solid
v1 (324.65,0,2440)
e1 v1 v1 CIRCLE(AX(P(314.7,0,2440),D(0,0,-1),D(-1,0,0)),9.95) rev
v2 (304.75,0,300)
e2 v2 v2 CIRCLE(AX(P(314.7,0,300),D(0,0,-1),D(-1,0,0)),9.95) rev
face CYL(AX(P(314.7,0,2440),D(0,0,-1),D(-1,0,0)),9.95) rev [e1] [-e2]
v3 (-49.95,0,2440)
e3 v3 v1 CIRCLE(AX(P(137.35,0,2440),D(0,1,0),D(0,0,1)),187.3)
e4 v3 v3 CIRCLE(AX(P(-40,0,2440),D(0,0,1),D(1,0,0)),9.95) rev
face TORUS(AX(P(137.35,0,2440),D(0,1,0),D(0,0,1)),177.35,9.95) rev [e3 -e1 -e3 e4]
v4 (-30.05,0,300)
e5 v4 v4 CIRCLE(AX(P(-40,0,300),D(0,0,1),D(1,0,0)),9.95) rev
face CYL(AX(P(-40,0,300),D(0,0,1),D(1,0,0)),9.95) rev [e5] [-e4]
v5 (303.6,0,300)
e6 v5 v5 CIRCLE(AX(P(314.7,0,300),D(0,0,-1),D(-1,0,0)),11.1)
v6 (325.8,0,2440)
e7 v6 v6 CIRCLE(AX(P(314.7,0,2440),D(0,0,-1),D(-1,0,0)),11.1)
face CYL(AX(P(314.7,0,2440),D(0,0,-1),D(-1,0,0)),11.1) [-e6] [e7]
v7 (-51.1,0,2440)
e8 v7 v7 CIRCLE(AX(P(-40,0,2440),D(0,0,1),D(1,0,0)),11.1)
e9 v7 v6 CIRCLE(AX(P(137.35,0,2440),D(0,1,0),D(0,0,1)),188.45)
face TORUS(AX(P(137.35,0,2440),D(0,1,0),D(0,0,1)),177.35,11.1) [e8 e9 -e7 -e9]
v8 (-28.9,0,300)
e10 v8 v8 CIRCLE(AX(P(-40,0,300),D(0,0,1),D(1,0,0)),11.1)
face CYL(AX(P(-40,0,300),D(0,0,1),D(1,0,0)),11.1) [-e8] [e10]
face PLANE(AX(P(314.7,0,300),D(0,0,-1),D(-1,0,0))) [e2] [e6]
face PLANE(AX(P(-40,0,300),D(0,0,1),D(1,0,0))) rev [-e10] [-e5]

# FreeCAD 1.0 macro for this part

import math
import FreeCAD as App
import Part
import Sketcher
Q = App.Units.Quantity

doc = App.newDocument("Part")
params = doc.addObject("Spreadsheet::Sheet", "Params")
for row, (alias, value) in enumerate([
    ("sketch1_diameter", "22.2 mm"),
    ("sketch1_diameter2", "19.9 mm"),
    ("sketch2_height", "2140 mm"),
    ("sketch2_radius", "177.35 mm"),
], start=1):
    params.set(f"A{row}", alias)
    params.set(f"B{row}", "=" + value)
    params.setAlias(f"B{row}", alias)

body = doc.addObject("PartDesign::Body", "Body")

sketch1 = body.newObject("Sketcher::SketchObject", "Sketch")
sketch1.AttachmentSupport = (doc.getObject("XY_Plane"), [""])
sketch1.MapMode = "FlatFace"
sketch1.AttachmentOffset = App.Placement(App.Vector(0, 0, 300), App.Rotation())
sketch1.addGeometry([
    Part.Circle(App.Vector(315, 0, 0), App.Vector(0, 0, 1), 11),
    Part.Circle(App.Vector(315, 0, 0), App.Vector(0, 0, 1), 10),
], False)
sketch1.addConstraint([
    Sketcher.Constraint("Coincident", 1, 3, 0, 3),
    Sketcher.Constraint("PointOnObject", 0, 3, -1),
    Sketcher.Constraint("Diameter", 0, Q("22.2 mm")),
    Sketcher.Constraint("Diameter", 1, Q("19.9 mm")),
    Sketcher.Constraint("DistanceX", -1, 1, 0, 3, Q("314.7 mm")),
])
sketch1.setExpression("Constraints[2]", "Params.sketch1_diameter")
sketch1.setExpression("Constraints[3]", "Params.sketch1_diameter2")

sketch2 = body.newObject("Sketcher::SketchObject", "Sketch001")
sketch2.AttachmentSupport = (doc.getObject("XZ_Plane"), [""])
sketch2.MapMode = "FlatFace"
sketch2.addGeometry([
    Part.LineSegment(App.Vector(315, 300, 0), App.Vector(315, 2440, 0)),
    Part.ArcOfCircle(Part.Circle(App.Vector(137, 2440, 0), App.Vector(0, 0, 1), 177), math.radians(0), math.radians(180)),
    Part.LineSegment(App.Vector(-40, 2440, 0), App.Vector(-40, 300, 0)),
], False)
sketch2.addConstraint([
    Sketcher.Constraint("Tangent", 0, 2, 1, 1),
    Sketcher.Constraint("Tangent", 1, 2, 2, 1),
    Sketcher.Constraint("Vertical", 0),
    Sketcher.Constraint("Vertical", 2),
    Sketcher.Constraint("Horizontal", 0, 1, 2, 2),
    Sketcher.Constraint("DistanceY", 0, 1, 0, 2, Q("2140 mm")),
    Sketcher.Constraint("Radius", 1, Q("177.35 mm")),
    Sketcher.Constraint("DistanceY", -1, 1, 1, 3, Q("2440 mm")),
    Sketcher.Constraint("DistanceX", 1, 2, -1, 1, Q("40 mm")),
])
sketch2.setExpression("Constraints[5]", "Params.sketch2_height")
sketch2.setExpression("Constraints[6]", "Params.sketch2_radius")
doc.recompute()

additivepipe = body.newObject("PartDesign::AdditivePipe", "AdditivePipe")
additivepipe.Profile = sketch1
additivepipe.Spine = (sketch2, ["Edge1", "Edge2", "Edge3"])

doc.recompute()
